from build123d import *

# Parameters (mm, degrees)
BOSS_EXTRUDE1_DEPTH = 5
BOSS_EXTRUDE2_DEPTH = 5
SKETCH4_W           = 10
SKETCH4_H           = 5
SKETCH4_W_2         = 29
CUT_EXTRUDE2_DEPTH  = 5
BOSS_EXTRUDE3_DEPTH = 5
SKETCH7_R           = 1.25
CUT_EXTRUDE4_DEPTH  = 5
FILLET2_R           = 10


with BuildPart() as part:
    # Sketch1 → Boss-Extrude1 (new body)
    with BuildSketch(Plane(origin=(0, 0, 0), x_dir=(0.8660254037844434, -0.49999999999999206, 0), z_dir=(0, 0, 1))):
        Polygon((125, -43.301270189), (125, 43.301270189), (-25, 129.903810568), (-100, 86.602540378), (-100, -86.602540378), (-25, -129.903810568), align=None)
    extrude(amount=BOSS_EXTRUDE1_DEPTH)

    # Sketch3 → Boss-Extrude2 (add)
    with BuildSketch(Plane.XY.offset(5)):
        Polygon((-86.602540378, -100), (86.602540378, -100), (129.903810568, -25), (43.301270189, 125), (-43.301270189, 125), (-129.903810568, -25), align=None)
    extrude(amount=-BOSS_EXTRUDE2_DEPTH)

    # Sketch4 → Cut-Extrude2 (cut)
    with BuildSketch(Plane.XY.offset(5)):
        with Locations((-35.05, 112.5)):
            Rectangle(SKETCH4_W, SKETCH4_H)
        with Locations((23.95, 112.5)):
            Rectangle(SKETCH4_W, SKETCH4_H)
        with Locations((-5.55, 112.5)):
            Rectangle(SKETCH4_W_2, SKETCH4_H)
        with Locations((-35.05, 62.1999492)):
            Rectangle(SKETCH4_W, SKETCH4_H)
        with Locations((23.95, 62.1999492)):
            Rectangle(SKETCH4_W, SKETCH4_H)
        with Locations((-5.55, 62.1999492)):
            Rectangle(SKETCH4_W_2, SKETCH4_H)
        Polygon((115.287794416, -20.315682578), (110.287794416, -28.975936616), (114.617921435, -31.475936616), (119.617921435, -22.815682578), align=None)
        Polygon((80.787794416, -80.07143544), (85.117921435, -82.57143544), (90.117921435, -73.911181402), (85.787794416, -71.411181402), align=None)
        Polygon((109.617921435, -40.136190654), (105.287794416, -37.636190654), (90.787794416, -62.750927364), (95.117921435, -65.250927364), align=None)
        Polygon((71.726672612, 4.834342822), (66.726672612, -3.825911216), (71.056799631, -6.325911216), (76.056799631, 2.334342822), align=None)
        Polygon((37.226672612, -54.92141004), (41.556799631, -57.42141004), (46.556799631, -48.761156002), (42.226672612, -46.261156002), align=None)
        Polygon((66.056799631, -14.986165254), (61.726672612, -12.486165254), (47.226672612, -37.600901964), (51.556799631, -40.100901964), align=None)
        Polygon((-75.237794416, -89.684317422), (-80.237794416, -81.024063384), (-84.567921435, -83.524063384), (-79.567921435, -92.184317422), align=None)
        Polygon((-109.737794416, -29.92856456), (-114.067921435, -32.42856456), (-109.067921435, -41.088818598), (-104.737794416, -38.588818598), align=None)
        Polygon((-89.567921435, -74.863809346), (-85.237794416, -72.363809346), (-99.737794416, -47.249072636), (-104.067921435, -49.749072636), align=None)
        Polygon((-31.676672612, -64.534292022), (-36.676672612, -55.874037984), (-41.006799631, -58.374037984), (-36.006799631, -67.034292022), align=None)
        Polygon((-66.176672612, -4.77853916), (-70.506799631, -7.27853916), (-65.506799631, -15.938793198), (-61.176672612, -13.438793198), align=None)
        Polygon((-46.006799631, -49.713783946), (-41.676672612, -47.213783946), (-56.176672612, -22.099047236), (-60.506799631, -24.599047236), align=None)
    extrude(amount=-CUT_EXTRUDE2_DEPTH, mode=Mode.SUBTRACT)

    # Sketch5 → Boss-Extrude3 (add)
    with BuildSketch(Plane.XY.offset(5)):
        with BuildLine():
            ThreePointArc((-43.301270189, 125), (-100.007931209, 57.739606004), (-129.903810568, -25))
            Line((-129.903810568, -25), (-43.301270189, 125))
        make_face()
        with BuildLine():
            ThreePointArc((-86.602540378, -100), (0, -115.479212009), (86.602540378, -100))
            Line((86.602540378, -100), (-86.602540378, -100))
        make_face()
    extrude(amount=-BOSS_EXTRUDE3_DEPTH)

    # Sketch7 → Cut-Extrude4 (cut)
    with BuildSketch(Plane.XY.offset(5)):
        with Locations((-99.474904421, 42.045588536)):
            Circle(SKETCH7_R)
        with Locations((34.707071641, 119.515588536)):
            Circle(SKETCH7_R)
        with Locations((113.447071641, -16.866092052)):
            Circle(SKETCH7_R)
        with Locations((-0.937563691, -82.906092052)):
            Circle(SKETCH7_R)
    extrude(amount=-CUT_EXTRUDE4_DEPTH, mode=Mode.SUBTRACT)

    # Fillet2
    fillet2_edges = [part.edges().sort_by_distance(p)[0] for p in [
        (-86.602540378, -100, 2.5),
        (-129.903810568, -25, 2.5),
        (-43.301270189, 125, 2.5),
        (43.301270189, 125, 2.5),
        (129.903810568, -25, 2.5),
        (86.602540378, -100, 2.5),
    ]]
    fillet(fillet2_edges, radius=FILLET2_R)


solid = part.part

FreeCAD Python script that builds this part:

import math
import FreeCAD as App
import Part
import Sketcher
from FreeCAD import Vector
Q = App.Units.Quantity


def edges_at(feature, points):
    """Names of the edges that pass closest to the given points."""
    edges = feature.Shape.Edges
    near = lambda p: min(range(len(edges)), key=lambda i: edges[i].distToShape(Part.Vertex(*p))[0])
    return sorted({f"Edge{near(p) + 1}" for p in points})

doc = App.newDocument("Part")
body = doc.addObject("PartDesign::Body", "Body")

# Sketch on XY plane
sketch1 = body.newObject("Sketcher::SketchObject", "Sketch")
sketch1.AttachmentSupport = (doc.getObject("XY_Plane"), [""])
sketch1.MapMode = "FlatFace"
sketch1.addGeometry([
    Part.LineSegment(Vector(87, -100, 0), Vector(130, -25, 0)),  # 0
    Part.LineSegment(Vector(130, -25, 0), Vector(43, 125, 0)),  # 1
    Part.LineSegment(Vector(43, 125, 0), Vector(-43, 125, 0)),  # 2
    Part.LineSegment(Vector(-43, 125, 0), Vector(-130, -25, 0)),  # 3
    Part.LineSegment(Vector(-130, -25, 0), Vector(-87, -100, 0)),  # 4
    Part.LineSegment(Vector(-87, -100, 0), Vector(87, -100, 0)),  # 5
], False)
sketch1.addConstraint([
    Sketcher.Constraint("Coincident", 0, 2, 1, 1),
    Sketcher.Constraint("Coincident", 1, 2, 2, 1),
    Sketcher.Constraint("Coincident", 2, 2, 3, 1),
    Sketcher.Constraint("Coincident", 3, 2, 4, 1),
    Sketcher.Constraint("Coincident", 4, 2, 5, 1),
    Sketcher.Constraint("Coincident", 5, 2, 0, 1),
    Sketcher.Constraint("Horizontal", 2),
    Sketcher.Constraint("Horizontal", 5),
    Sketcher.Constraint("Symmetric", 0, 2, 3, 2, -2),
    Sketcher.Constraint("Parallel", 0, 3),
    Sketcher.Constraint("Parallel", 1, 4),
    Sketcher.Constraint("Equal", 1, 3),
    Sketcher.Constraint("Angle", 0, Q("60 deg")),
    Sketcher.Constraint("DistanceY", 0, 2, -1, 1, 25.0),
    Sketcher.Constraint("DistanceY", -1, 1, 1, 2, 125.0),
    Sketcher.Constraint("DistanceY", 4, 2, -1, 1, 100.0),
    Sketcher.Constraint("DistanceX", 2, 2, 2, 1, 86.60254),
])
pad1 = body.newObject("PartDesign::Pad", "Pad")
pad1.Profile = sketch1
pad1.Length = 5

# Sketch on XY plane
sketch2 = body.newObject("Sketcher::SketchObject", "Sketch001")
sketch2.AttachmentSupport = (doc.getObject("XY_Plane"), [""])
sketch2.MapMode = "FlatFace"
sketch2.AttachmentOffset = App.Placement(Vector(0, 0, 5), App.Rotation())
sketch2.addGeometry([
    Part.LineSegment(Vector(-87, -100, 0), Vector(87, -100, 0)),  # 0
    Part.LineSegment(Vector(87, -100, 0), Vector(130, -25, 0)),  # 1
    Part.LineSegment(Vector(130, -25, 0), Vector(43, 125, 0)),  # 2
    Part.LineSegment(Vector(43, 125, 0), Vector(-43, 125, 0)),  # 3
    Part.LineSegment(Vector(-43, 125, 0), Vector(-130, -25, 0)),  # 4
    Part.LineSegment(Vector(-130, -25, 0), Vector(-87, -100, 0)),  # 5
], False)
sketch2.addConstraint([
    Sketcher.Constraint("Coincident", 0, 2, 1, 1),
    Sketcher.Constraint("Coincident", 1, 2, 2, 1),
    Sketcher.Constraint("Coincident", 2, 2, 3, 1),
    Sketcher.Constraint("Coincident", 3, 2, 4, 1),
    Sketcher.Constraint("Coincident", 4, 2, 5, 1),
    Sketcher.Constraint("Coincident", 5, 2, 0, 1),
    Sketcher.Constraint("Horizontal", 0),
    Sketcher.Constraint("Horizontal", 3),
    Sketcher.Constraint("Symmetric", 1, 2, 4, 2, -2),
    Sketcher.Constraint("Parallel", 1, 4),
    Sketcher.Constraint("Parallel", 2, 5),
    Sketcher.Constraint("Equal", 2, 4),
    Sketcher.Constraint("Angle", 1, Q("60 deg")),
    Sketcher.Constraint("DistanceY", 0, 2, -1, 1, 100.0),
    Sketcher.Constraint("DistanceY", 1, 2, -1, 1, 25.0),
    Sketcher.Constraint("DistanceY", -1, 1, 2, 2, 125.0),
    Sketcher.Constraint("DistanceX", 0, 1, 0, 2, 173.205081),
])
pad2 = body.newObject("PartDesign::Pad", "Pad001")
pad2.Profile = sketch2
pad2.Length = 5
pad2.Reversed = True

# Sketch on XY plane
sketch3 = body.newObject("Sketcher::SketchObject", "Sketch002")
sketch3.AttachmentSupport = (doc.getObject("XY_Plane"), [""])
sketch3.MapMode = "FlatFace"
sketch3.AttachmentOffset = App.Placement(Vector(0, 0, 5), App.Rotation())
sketch3.addGeometry([
    Part.LineSegment(Vector(-40, 115, 0), Vector(-40, 110, 0)),  # 0
    Part.LineSegment(Vector(-40, 110, 0), Vector(-30, 110, 0)),  # 1
    Part.LineSegment(Vector(-30, 110, 0), Vector(-30, 115, 0)),  # 2
    Part.LineSegment(Vector(-30, 115, 0), Vector(-40, 115, 0)),  # 3
    Part.LineSegment(Vector(19, 115, 0), Vector(19, 110, 0)),  # 4
    Part.LineSegment(Vector(19, 110, 0), Vector(29, 110, 0)),  # 5
    Part.LineSegment(Vector(29, 110, 0), Vector(29, 115, 0)),  # 6
    Part.LineSegment(Vector(29, 115, 0), Vector(19, 115, 0)),  # 7
    Part.LineSegment(Vector(-20, 115, 0), Vector(-20, 110, 0)),  # 8
    Part.LineSegment(Vector(-20, 110, 0), Vector(9, 110, 0)),  # 9
    Part.LineSegment(Vector(9, 110, 0), Vector(9, 115, 0)),  # 10
    Part.LineSegment(Vector(9, 115, 0), Vector(-20, 115, 0)),  # 11
    Part.LineSegment(Vector(-40, 65, 0), Vector(-40, 60, 0)),  # 12
    Part.LineSegment(Vector(-40, 60, 0), Vector(-30, 60, 0)),  # 13
    Part.LineSegment(Vector(-30, 60, 0), Vector(-30, 65, 0)),  # 14
    Part.LineSegment(Vector(-30, 65, 0), Vector(-40, 65, 0)),  # 15
    Part.LineSegment(Vector(19, 65, 0), Vector(19, 60, 0)),  # 16
    Part.LineSegment(Vector(19, 60, 0), Vector(29, 60, 0)),  # 17
    Part.LineSegment(Vector(29, 60, 0), Vector(29, 65, 0)),  # 18
    Part.LineSegment(Vector(29, 65, 0), Vector(19, 65, 0)),  # 19
    Part.LineSegment(Vector(-20, 65, 0), Vector(-20, 60, 0)),  # 20
    Part.LineSegment(Vector(-20, 60, 0), Vector(9, 60, 0)),  # 21
    Part.LineSegment(Vector(9, 60, 0), Vector(9, 65, 0)),  # 22
    Part.LineSegment(Vector(9, 65, 0), Vector(-20, 65, 0)),  # 23
    Part.LineSegment(Vector(115, -20, 0), Vector(110, -29, 0)),  # 24
    Part.LineSegment(Vector(110, -29, 0), Vector(115, -31, 0)),  # 25
    Part.LineSegment(Vector(115, -31, 0), Vector(120, -23, 0)),  # 26
    Part.LineSegment(Vector(120, -23, 0), Vector(115, -20, 0)),  # 27
    Part.LineSegment(Vector(81, -80, 0), Vector(85, -83, 0)),  # 28
    Part.LineSegment(Vector(85, -83, 0), Vector(90, -74, 0)),  # 29
    Part.LineSegment(Vector(90, -74, 0), Vector(86, -71, 0)),  # 30
    Part.LineSegment(Vector(86, -71, 0), Vector(81, -80, 0)),  # 31
    Part.LineSegment(Vector(110, -40, 0), Vector(105, -38, 0)),  # 32
    Part.LineSegment(Vector(105, -38, 0), Vector(91, -63, 0)),  # 33
    Part.LineSegment(Vector(91, -63, 0), Vector(95, -65, 0)),  # 34
    Part.LineSegment(Vector(95, -65, 0), Vector(110, -40, 0)),  # 35
    Part.LineSegment(Vector(72, 5, 0), Vector(67, -4, 0)),  # 36
    Part.LineSegment(Vector(67, -4, 0), Vector(71, -6, 0)),  # 37
    Part.LineSegment(Vector(71, -6, 0), Vector(76, 2, 0)),  # 38
    Part.LineSegment(Vector(76, 2, 0), Vector(72, 5, 0)),  # 39
    Part.LineSegment(Vector(37, -55, 0), Vector(42, -57, 0)),  # 40
    Part.LineSegment(Vector(42, -57, 0), Vector(47, -49, 0)),  # 41
    Part.LineSegment(Vector(47, -49, 0), Vector(42, -46, 0)),  # 42
    Part.LineSegment(Vector(42, -46, 0), Vector(37, -55, 0)),  # 43
    Part.LineSegment(Vector(66, -15, 0), Vector(62, -12, 0)),  # 44
    Part.LineSegment(Vector(62, -12, 0), Vector(47, -38, 0)),  # 45
    Part.LineSegment(Vector(47, -38, 0), Vector(52, -40, 0)),  # 46
    Part.LineSegment(Vector(52, -40, 0), Vector(66, -15, 0)),  # 47
    Part.LineSegment(Vector(-75, -90, 0), Vector(-80, -81, 0)),  # 48
    Part.LineSegment(Vector(-80, -81, 0), Vector(-85, -84, 0)),  # 49
    Part.LineSegment(Vector(-85, -84, 0), Vector(-80, -92, 0)),  # 50
    Part.LineSegment(Vector(-80, -92, 0), Vector(-75, -90, 0)),  # 51
    Part.LineSegment(Vector(-110, -30, 0), Vector(-114, -32, 0)),  # 52
    Part.LineSegment(Vector(-114, -32, 0), Vector(-109, -41, 0)),  # 53
    Part.LineSegment(Vector(-109, -41, 0), Vector(-105, -39, 0)),  # 54
    Part.LineSegment(Vector(-105, -39, 0), Vector(-110, -30, 0)),  # 55
    Part.LineSegment(Vector(-90, -75, 0), Vector(-85, -72, 0)),  # 56
    Part.LineSegment(Vector(-85, -72, 0), Vector(-100, -47, 0)),  # 57
    Part.LineSegment(Vector(-100, -47, 0), Vector(-104, -50, 0)),  # 58
    Part.LineSegment(Vector(-104, -50, 0), Vector(-90, -75, 0)),  # 59
    Part.LineSegment(Vector(-32, -65, 0), Vector(-37, -56, 0)),  # 60
    Part.LineSegment(Vector(-37, -56, 0), Vector(-41, -58, 0)),  # 61
    Part.LineSegment(Vector(-41, -58, 0), Vector(-36, -67, 0)),  # 62
    Part.LineSegment(Vector(-36, -67, 0), Vector(-32, -65, 0)),  # 63
    Part.LineSegment(Vector(-66, -5, 0), Vector(-71, -7, 0)),  # 64
    Part.LineSegment(Vector(-71, -7, 0), Vector(-66, -16, 0)),  # 65
    Part.LineSegment(Vector(-66, -16, 0), Vector(-61, -13, 0)),  # 66
    Part.LineSegment(Vector(-61, -13, 0), Vector(-66, -5, 0)),  # 67
    Part.LineSegment(Vector(-46, -50, 0), Vector(-42, -47, 0)),  # 68
    Part.LineSegment(Vector(-42, -47, 0), Vector(-56, -22, 0)),  # 69
    Part.LineSegment(Vector(-56, -22, 0), Vector(-61, -25, 0)),  # 70
    Part.LineSegment(Vector(-61, -25, 0), Vector(-46, -50, 0)),  # 71
], False)
sketch3.addConstraint([
    Sketcher.Constraint("Coincident", 0, 2, 1, 1),
    Sketcher.Constraint("Coincident", 1, 2, 2, 1),
    Sketcher.Constraint("Coincident", 2, 2, 3, 1),
    Sketcher.Constraint("Coincident", 3, 2, 0, 1),
    Sketcher.Constraint("Coincident", 4, 2, 5, 1),
    Sketcher.Constraint("Coincident", 5, 2, 6, 1),
    Sketcher.Constraint("Coincident", 6, 2, 7, 1),
    Sketcher.Constraint("Coincident", 7, 2, 4, 1),
    Sketcher.Constraint("Coincident", 8, 2, 9, 1),
    Sketcher.Constraint("Coincident", 9, 2, 10, 1),
    Sketcher.Constraint("Coincident", 10, 2, 11, 1),
    Sketcher.Constraint("Coincident", 11, 2, 8, 1),
    Sketcher.Constraint("Coincident", 12, 2, 13, 1),
    Sketcher.Constraint("Coincident", 13, 2, 14, 1),
    Sketcher.Constraint("Coincident", 14, 2, 15, 1),
    Sketcher.Constraint("Coincident", 15, 2, 12, 1),
    Sketcher.Constraint("Coincident", 16, 2, 17, 1),
    Sketcher.Constraint("Coincident", 17, 2, 18, 1),
    Sketcher.Constraint("Coincident", 18, 2, 19, 1),
    Sketcher.Constraint("Coincident", 19, 2, 16, 1),
    Sketcher.Constraint("Coincident", 20, 2, 21, 1),
    Sketcher.Constraint("Coincident", 21, 2, 22, 1),
    Sketcher.Constraint("Coincident", 22, 2, 23, 1),
    Sketcher.Constraint("Coincident", 23, 2, 20, 1),
    Sketcher.Constraint("Coincident", 24, 2, 25, 1),
    Sketcher.Constraint("Coincident", 25, 2, 26, 1),
    Sketcher.Constraint("Coincident", 26, 2, 27, 1),
    Sketcher.Constraint("Coincident", 27, 2, 24, 1),
    Sketcher.Constraint("Coincident", 28, 2, 29, 1),
    Sketcher.Constraint("Coincident", 29, 2, 30, 1),
    Sketcher.Constraint("Coincident", 30, 2, 31, 1),
    Sketcher.Constraint("Coincident", 31, 2, 28, 1),
    Sketcher.Constraint("Coincident", 32, 2, 33, 1),
    Sketcher.Constraint("Coincident", 33, 2, 34, 1),
    Sketcher.Constraint("Coincident", 34, 2, 35, 1),
    Sketcher.Constraint("Coincident", 35, 2, 32, 1),
    Sketcher.Constraint("Coincident", 36, 2, 37, 1),
    Sketcher.Constraint("Coincident", 37, 2, 38, 1),
    Sketcher.Constraint("Coincident", 38, 2, 39, 1),
    Sketcher.Constraint("Coincident", 39, 2, 36, 1),
    Sketcher.Constraint("Coincident", 40, 2, 41, 1),
    Sketcher.Constraint("Coincident", 41, 2, 42, 1),
    Sketcher.Constraint("Coincident", 42, 2, 43, 1),
    Sketcher.Constraint("Coincident", 43, 2, 40, 1),
    Sketcher.Constraint("Coincident", 44, 2, 45, 1),
    Sketcher.Constraint("Coincident", 45, 2, 46, 1),
    Sketcher.Constraint("Coincident", 46, 2, 47, 1),
    Sketcher.Constraint("Coincident", 47, 2, 44, 1),
    Sketcher.Constraint("Coincident", 48, 2, 49, 1),
    Sketcher.Constraint("Coincident", 49, 2, 50, 1),
    Sketcher.Constraint("Coincident", 50, 2, 51, 1),
    Sketcher.Constraint("Coincident", 51, 2, 48, 1),
    Sketcher.Constraint("Coincident", 52, 2, 53, 1),
    Sketcher.Constraint("Coincident", 53, 2, 54, 1),
    Sketcher.Constraint("Coincident", 54, 2, 55, 1),
    Sketcher.Constraint("Coincident", 55, 2, 52, 1),
    Sketcher.Constraint("Coincident", 56, 2, 57, 1),
    Sketcher.Constraint("Coincident", 57, 2, 58, 1),
    Sketcher.Constraint("Coincident", 58, 2, 59, 1),
    Sketcher.Constraint("Coincident", 59, 2, 56, 1),
    Sketcher.Constraint("Coincident", 60, 2, 61, 1),
    Sketcher.Constraint("Coincident", 61, 2, 62, 1),
    Sketcher.Constraint("Coincident", 62, 2, 63, 1),
    Sketcher.Constraint("Coincident", 63, 2, 60, 1),
    Sketcher.Constraint("Coincident", 64, 2, 65, 1),
    Sketcher.Constraint("Coincident", 65, 2, 66, 1),
    Sketcher.Constraint("Coincident", 66, 2, 67, 1),
    Sketcher.Constraint("Coincident", 67, 2, 64, 1),
    Sketcher.Constraint("Coincident", 68, 2, 69, 1),
    Sketcher.Constraint("Coincident", 69, 2, 70, 1),
    Sketcher.Constraint("Coincident", 70, 2, 71, 1),
    Sketcher.Constraint("Coincident", 71, 2, 68, 1),
    Sketcher.Constraint("Vertical", 0),
    Sketcher.Constraint("Horizontal", 1),
    Sketcher.Constraint("Vertical", 2),
    Sketcher.Constraint("Horizontal", 3),
    Sketcher.Constraint("Vertical", 4),
    Sketcher.Constraint("Horizontal", 5),
    Sketcher.Constraint("Vertical", 6),
    Sketcher.Constraint("Horizontal", 7),
    Sketcher.Constraint("Vertical", 8),
    Sketcher.Constraint("Horizontal", 9),
    Sketcher.Constraint("Vertical", 10),
    Sketcher.Constraint("Horizontal", 11),
    Sketcher.Constraint("Vertical", 12),
    Sketcher.Constraint("Horizontal", 13),
    Sketcher.Constraint("Vertical", 14),
    Sketcher.Constraint("Horizontal", 15),
    Sketcher.Constraint("Vertical", 16),
    Sketcher.Constraint("Horizontal", 17),
    Sketcher.Constraint("Vertical", 18),
    Sketcher.Constraint("Horizontal", 19),
    Sketcher.Constraint("Vertical", 20),
    Sketcher.Constraint("Horizontal", 21),
    Sketcher.Constraint("Vertical", 22),
    Sketcher.Constraint("Horizontal", 23),
    Sketcher.Constraint("Perpendicular", 24, 25),
    Sketcher.Constraint("Perpendicular", 25, 26),
    Sketcher.Constraint("Perpendicular", 26, 27),
    Sketcher.Constraint("Parallel", 27, 28),
    Sketcher.Constraint("Perpendicular", 28, 29),
    Sketcher.Constraint("Perpendicular", 29, 30),
    Sketcher.Constraint("Perpendicular", 30, 31),
    Sketcher.Constraint("Perpendicular", 31, 32),
    Sketcher.Constraint("Perpendicular", 32, 33),
    Sketcher.Constraint("Perpendicular", 33, 34),
    Sketcher.Constraint("Perpendicular", 34, 35),
    Sketcher.Constraint("Parallel", 35, 36),
    Sketcher.Constraint("Perpendicular", 36, 37),
    Sketcher.Constraint("Perpendicular", 37, 38),
    Sketcher.Constraint("Perpendicular", 38, 39),
    Sketcher.Constraint("Parallel", 39, 40),
    Sketcher.Constraint("Perpendicular", 40, 41),
    Sketcher.Constraint("Perpendicular", 41, 42),
    Sketcher.Constraint("Perpendicular", 42, 43),
    Sketcher.Constraint("Perpendicular", 43, 44),
    Sketcher.Constraint("Perpendicular", 44, 45),
    Sketcher.Constraint("Perpendicular", 45, 46),
    Sketcher.Constraint("Perpendicular", 46, 47),
    Sketcher.Constraint("Perpendicular", 48, 49),
    Sketcher.Constraint("Perpendicular", 49, 50),
    Sketcher.Constraint("Perpendicular", 50, 51),
    Sketcher.Constraint("Parallel", 51, 52),
    Sketcher.Constraint("Perpendicular", 52, 53),
    Sketcher.Constraint("Perpendicular", 53, 54),
    Sketcher.Constraint("Perpendicular", 54, 55),
    Sketcher.Constraint("Perpendicular", 55, 56),
    Sketcher.Constraint("Perpendicular", 56, 57),
    Sketcher.Constraint("Perpendicular", 57, 58),
    Sketcher.Constraint("Perpendicular", 58, 59),
    Sketcher.Constraint("Parallel", 59, 60),
    Sketcher.Constraint("Perpendicular", 60, 61),
    Sketcher.Constraint("Perpendicular", 61, 62),
    Sketcher.Constraint("Perpendicular", 62, 63),
    Sketcher.Constraint("Parallel", 63, 64),
    Sketcher.Constraint("Perpendicular", 64, 65),
    Sketcher.Constraint("Perpendicular", 65, 66),
    Sketcher.Constraint("Perpendicular", 66, 67),
    Sketcher.Constraint("Perpendicular", 67, 68),
    Sketcher.Constraint("Perpendicular", 68, 69),
    Sketcher.Constraint("Perpendicular", 69, 70),
    Sketcher.Constraint("Perpendicular", 70, 71),
    Sketcher.Constraint("Horizontal", 1, 2, 4, 2),
    Sketcher.Constraint("Horizontal", 3, 2, 6, 2),
    Sketcher.Constraint("Horizontal", 5, 2, 8, 2),
    Sketcher.Constraint("Horizontal", 7, 2, 10, 2),
    Sketcher.Constraint("Horizontal", 13, 2, 16, 2),
    Sketcher.Constraint("Horizontal", 15, 2, 18, 2),
    Sketcher.Constraint("Horizontal", 17, 2, 20, 2),
    Sketcher.Constraint("Horizontal", 19, 2, 22, 2),
    Sketcher.Constraint("Vertical", 3, 2, 12, 2),
    Sketcher.Constraint("Vertical", 2, 2, 13, 2),
    Sketcher.Constraint("Vertical", 7, 2, 16, 2),
    Sketcher.Constraint("Vertical", 6, 2, 17, 2),
    Sketcher.Constraint("Vertical", 11, 2, 20, 2),
    Sketcher.Constraint("Vertical", 10, 2, 21, 2),
    Sketcher.Constraint("Equal", 3, 5),
    Sketcher.Constraint("Equal", 10, 12),
    Sketcher.Constraint("Equal", 27, 28),
    Sketcher.Constraint("Equal", 26, 29),
    Sketcher.Constraint("Equal", 30, 32),
    Sketcher.Constraint("Equal", 31, 36),
    Sketcher.Constraint("Equal", 34, 37),
    Sketcher.Constraint("Equal", 39, 40),
    Sketcher.Constraint("Equal", 38, 41),
    Sketcher.Constraint("Equal", 42, 44),
    Sketcher.Constraint("Equal", 35, 45),
    Sketcher.Constraint("Equal", 43, 48),
    Sketcher.Constraint("Equal", 46, 49),
    Sketcher.Constraint("Equal", 51, 52),
    Sketcher.Constraint("Equal", 50, 53),
    Sketcher.Constraint("Equal", 54, 56),
    Sketcher.Constraint("Equal", 47, 57),
    Sketcher.Constraint("Equal", 55, 60),
    Sketcher.Constraint("Equal", 58, 61),
    Sketcher.Constraint("Equal", 63, 64),
    Sketcher.Constraint("Equal", 62, 65),
    Sketcher.Constraint("Equal", 66, 68),
    Sketcher.Constraint("Equal", 59, 69),
    Sketcher.Constraint("DistanceX", 1, 1, 1, 2, 10.0),
    Sketcher.Constraint("DistanceX", 9, 1, 9, 2, 29.0),
    Sketcher.Constraint("DistanceY", 0, 2, 0, 1, 5.0),
    Sketcher.Constraint("Angle", 24, Q("-120 deg")),
    Sketcher.Constraint("Angle", 48, Q("120 deg")),
    Sketcher.Constraint("Distance", 24, 10.0),
    Sketcher.Constraint("Distance", 25, 5.0),
    Sketcher.Constraint("Distance", 33, 29.0),
    Sketcher.Constraint("DistanceY", -1, 1, 0, 2, 110.0),
    Sketcher.Constraint("DistanceX", 0, 2, -1, 1, 40.05),
    Sketcher.Constraint("DistanceX", -1, 1, 4, 2, 18.95),
    Sketcher.Constraint("DistanceX", 8, 2, -1, 1, 20.05),
    Sketcher.Constraint("DistanceX", -1, 1, 37, 2, 71.0568),
    Sketcher.Constraint("DistanceX", -1, 1, 40, 2, 41.5568),
    Sketcher.Constraint("DistanceY", 45, 2, -1, 1, 37.600902),
    Sketcher.Constraint("DistanceX", -1, 1, 46, 2, 51.5568),
    Sketcher.Constraint("DistanceX", 61, 2, -1, 1, 41.0068),
    Sketcher.Constraint("DistanceX", 64, 2, -1, 1, 70.5068),
    Sketcher.Constraint("DistanceX", 70, 2, -1, 1, 60.5068),
    Sketcher.Constraint("DistanceY", -1, 1, 12, 2, 59.699949),
    Sketcher.Constraint("DistanceX", -1, 1, 25, 2, 114.617921),
    Sketcher.Constraint("DistanceX", -1, 1, 28, 2, 85.117921),
    Sketcher.Constraint("DistanceY", 29, 2, -1, 1, 73.911181),
    Sketcher.Constraint("DistanceY", 32, 2, -1, 1, 37.636191),
    Sketcher.Constraint("DistanceX", -1, 1, 34, 2, 95.117921),
    Sketcher.Constraint("DistanceY", 36, 2, -1, 1, 3.825911),
    Sketcher.Constraint("DistanceY", 40, 2, -1, 1, 57.42141),
    Sketcher.Constraint("DistanceX", 49, 2, -1, 1, 84.567921),
    Sketcher.Constraint("DistanceX", 52, 2, -1, 1, 114.067921),
    Sketcher.Constraint("DistanceY", 53, 2, -1, 1, 41.088819),
    Sketcher.Constraint("DistanceY", 56, 2, -1, 1, 72.363809),
    Sketcher.Constraint("DistanceX", 58, 2, -1, 1, 104.067921),
    Sketcher.Constraint("DistanceY", 64, 2, -1, 1, 7.278539),
    Sketcher.Constraint("DistanceY", 24, 2, -1, 1, 28.975937),
    Sketcher.Constraint("DistanceY", 48, 2, -1, 1, 81.024063),
    Sketcher.Constraint("DistanceY", 60, 2, -1, 1, 55.874038),
    Sketcher.Constraint("DistanceY", 68, 2, -1, 1, 47.213784),
])
pocket1 = body.newObject("PartDesign::Pocket", "Pocket")
pocket1.Profile = sketch3
pocket1.Length = 5

# Sketch on XY plane
sketch4 = body.newObject("Sketcher::SketchObject", "Sketch003")
sketch4.AttachmentSupport = (doc.getObject("XY_Plane"), [""])
sketch4.MapMode = "FlatFace"
sketch4.AttachmentOffset = App.Placement(Vector(0, 0, 5), App.Rotation())
sketch4.addGeometry([
    Part.ArcOfCircle(Part.Circle(Vector(116, -67, 0), Vector(0, 0, 1), 250), math.radians(130), math.radians(170)),
    Part.LineSegment(Vector(-130, -25, 0), Vector(-43, 125, 0)),
    Part.ArcOfCircle(Part.Circle(Vector(0, 135, 0), Vector(0, 0, 1), 250), math.radians(-110), math.radians(-70)),
    Part.LineSegment(Vector(87, -100, 0), Vector(-87, -100, 0)),
], False)
sketch4.addConstraint([
    Sketcher.Constraint("Coincident", 0, 1, 1, 2),
    Sketcher.Constraint("Coincident", 1, 1, 0, 2),
    Sketcher.Constraint("Coincident", 2, 1, 3, 2),
    Sketcher.Constraint("Coincident", 3, 1, 2, 2),
    Sketcher.Constraint("Horizontal", 3),
    Sketcher.Constraint("Equal", 0, 2),
    Sketcher.Constraint("PointOnObject", 2, 3, -2),
    Sketcher.Constraint("Radius", 0, 250.0),
    Sketcher.Constraint("Angle", 1, Q("60 deg")),
    Sketcher.Constraint("DistanceY", -1, 1, 0, 1, 125.0),
    Sketcher.Constraint("DistanceY", 1, 1, -1, 1, 25.0),
    Sketcher.Constraint("DistanceY", 2, 1, -1, 1, 100.0),
    Sketcher.Constraint("DistanceX", 3, 2, 3, 1, 173.205081),
    Sketcher.Constraint("DistanceX", -1, 1, 0, 3, 116.49842),
])
pad3 = body.newObject("PartDesign::Pad", "Pad002")
pad3.Profile = sketch4
pad3.Length = 5
pad3.Reversed = True

# Sketch on XY plane
sketch5 = body.newObject("Sketcher::SketchObject", "Sketch004")
sketch5.AttachmentSupport = (doc.getObject("XY_Plane"), [""])
sketch5.MapMode = "FlatFace"
sketch5.AttachmentOffset = App.Placement(Vector(0, 0, 5), App.Rotation())
sketch5.addGeometry([
    Part.Circle(Vector(-99.5, 42, 0), Vector(0, 0, 1), 1.2),
    Part.Circle(Vector(34.7, 119.5, 0), Vector(0, 0, 1), 1.2),
    Part.Circle(Vector(113.4, -16.9, 0), Vector(0, 0, 1), 1.2),
    Part.Circle(Vector(-0.9, -82.9, 0), Vector(0, 0, 1), 1.2),
], False)
sketch5.addConstraint([
    Sketcher.Constraint("Equal", 0, 1),
    Sketcher.Constraint("Equal", 1, 2),
    Sketcher.Constraint("Equal", 2, 3),
    Sketcher.Constraint("Diameter", 0, 2.5),
    Sketcher.Constraint("DistanceY", 0, 3, 1, 3, 77.47),
    Sketcher.Constraint("DistanceX", 1, 3, 2, 3, 78.74),
    Sketcher.Constraint("DistanceY", 3, 3, 2, 3, 66.04),
    Sketcher.Constraint("DistanceY", -1, 1, 0, 3, 42.045589),
    Sketcher.Constraint("DistanceX", -1, 1, 1, 3, 34.707072),
    Sketcher.Constraint("DistanceY", 2, 3, 1, 3, 136.381681),
    Sketcher.Constraint("DistanceX", 0, 3, 3, 3, 98.537341),
    Sketcher.Constraint("DistanceX", 0, 3, -1, 1, 99.474904),
])
pocket2 = body.newObject("PartDesign::Pocket", "Pocket001")
pocket2.Profile = sketch5
pocket2.Length = 5
doc.recompute()

fillet = body.newObject("PartDesign::Fillet", "Fillet")
fillet.Base = (pocket2, edges_at(pocket2, [
    (-86.603, -100, 2.5),
    (-129.904, -25, 2.5),
    (-43.301, 125, 2.5),
    (43.301, 125, 2.5),
    (129.904, -25, 2.5),
    (86.603, -100, 2.5),
]))
fillet.Radius = 10

doc.recompute()
